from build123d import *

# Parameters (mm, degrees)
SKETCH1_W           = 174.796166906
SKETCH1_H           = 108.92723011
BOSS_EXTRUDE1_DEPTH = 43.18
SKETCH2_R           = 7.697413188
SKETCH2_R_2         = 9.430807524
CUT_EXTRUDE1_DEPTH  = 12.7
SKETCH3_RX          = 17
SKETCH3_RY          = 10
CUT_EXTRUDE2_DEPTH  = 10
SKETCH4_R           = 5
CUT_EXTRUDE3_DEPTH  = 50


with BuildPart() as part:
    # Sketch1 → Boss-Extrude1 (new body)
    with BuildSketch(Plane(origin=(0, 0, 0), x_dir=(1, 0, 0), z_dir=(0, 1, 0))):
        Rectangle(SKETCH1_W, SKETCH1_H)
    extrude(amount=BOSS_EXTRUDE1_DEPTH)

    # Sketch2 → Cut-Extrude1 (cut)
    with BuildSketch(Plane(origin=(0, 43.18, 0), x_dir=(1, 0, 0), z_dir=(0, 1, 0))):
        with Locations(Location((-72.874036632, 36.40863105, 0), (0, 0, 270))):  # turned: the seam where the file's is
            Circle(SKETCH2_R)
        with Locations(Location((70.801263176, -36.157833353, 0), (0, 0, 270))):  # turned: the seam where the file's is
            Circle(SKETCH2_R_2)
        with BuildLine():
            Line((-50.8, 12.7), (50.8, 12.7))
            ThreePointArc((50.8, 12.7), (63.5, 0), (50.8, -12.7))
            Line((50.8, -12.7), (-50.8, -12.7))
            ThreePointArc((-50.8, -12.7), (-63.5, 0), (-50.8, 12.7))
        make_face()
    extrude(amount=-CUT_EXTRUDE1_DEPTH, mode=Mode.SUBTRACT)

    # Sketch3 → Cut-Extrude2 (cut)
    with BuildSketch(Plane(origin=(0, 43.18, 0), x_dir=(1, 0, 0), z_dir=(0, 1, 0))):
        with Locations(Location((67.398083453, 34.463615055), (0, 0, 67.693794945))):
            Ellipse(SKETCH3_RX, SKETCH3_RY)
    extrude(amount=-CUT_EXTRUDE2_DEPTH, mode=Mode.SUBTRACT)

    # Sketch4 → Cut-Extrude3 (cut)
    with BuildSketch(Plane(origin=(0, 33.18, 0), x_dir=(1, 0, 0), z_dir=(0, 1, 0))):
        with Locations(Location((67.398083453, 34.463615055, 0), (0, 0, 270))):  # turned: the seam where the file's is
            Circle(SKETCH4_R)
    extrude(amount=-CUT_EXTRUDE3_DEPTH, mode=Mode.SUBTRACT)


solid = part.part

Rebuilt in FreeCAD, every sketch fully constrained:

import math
import FreeCAD as App
import Part
import Sketcher
from FreeCAD import Vector
Q = App.Units.Quantity

doc = App.newDocument("Part")
body = doc.addObject("PartDesign::Body", "Body")

# Sketch on XZ plane
sketch1 = body.newObject("Sketcher::SketchObject", "Sketch")
sketch1.AttachmentSupport = (doc.getObject("XZ_Plane"), [""])
sketch1.MapMode = "FlatFace"
sketch1.addGeometry([
    Part.LineSegment(Vector(-87, -54, 0), Vector(-87, 54, 0)),
    Part.LineSegment(Vector(-87, 54, 0), Vector(87, 54, 0)),
    Part.LineSegment(Vector(87, 54, 0), Vector(87, -54, 0)),
    Part.LineSegment(Vector(87, -54, 0), Vector(-87, -54, 0)),
], False)
sketch1.addConstraint([
    Sketcher.Constraint("Coincident", 0, 2, 1, 1),
    Sketcher.Constraint("Coincident", 1, 2, 2, 1),
    Sketcher.Constraint("Coincident", 2, 2, 3, 1),
    Sketcher.Constraint("Coincident", 3, 2, 0, 1),
    Sketcher.Constraint("Vertical", 0),
    Sketcher.Constraint("Horizontal", 1),
    Sketcher.Constraint("Vertical", 2),
    Sketcher.Constraint("Horizontal", 3),
    Sketcher.Constraint("Symmetric", 0, 2, 2, 2, -1, 1),
    Sketcher.Constraint("DistanceY", 0, 1, 0, 2, Q("108.92723 mm")),
    Sketcher.Constraint("DistanceX", 1, 1, 1, 2, Q("174.796167 mm")),
])
pad1 = body.newObject("PartDesign::Pad", "Pad")
pad1.Profile = sketch1
pad1.Length = Q("1.7 in")
pad1.Reversed = True

# Sketch on XZ plane
sketch2 = body.newObject("Sketcher::SketchObject", "Sketch001")
sketch2.AttachmentSupport = (doc.getObject("XZ_Plane"), [""])
sketch2.MapMode = "FlatFace"
sketch2.AttachmentOffset = App.Placement(Vector(0, 0, -1.7 * 25.4), App.Rotation())
sketch2.addGeometry([
    Part.Circle(Vector(-73, -36, 0), Vector(0, 0, 1), 8),  # 0
    Part.Circle(Vector(71, 36, 0), Vector(0, 0, 1), 9),  # 1
    Part.LineSegment(Vector(51, -13, 0), Vector(-51, -13, 0)),  # 2
    Part.ArcOfCircle(Part.Circle(Vector(-51, 0, 0), Vector(0, 0, 1), 13), math.radians(90), math.radians(270)),  # 3
    Part.LineSegment(Vector(-51, 13, 0), Vector(51, 13, 0)),  # 4
    Part.ArcOfCircle(Part.Circle(Vector(51, 0, 0), Vector(0, 0, 1), 13), math.radians(-90), math.radians(90)),  # 5
], False)
sketch2.addConstraint([
    Sketcher.Constraint("Tangent", 2, 2, 3, 2),
    Sketcher.Constraint("Tangent", 3, 1, 4, 1),
    Sketcher.Constraint("Tangent", 4, 2, 5, 2),
    Sketcher.Constraint("Tangent", 5, 1, 2, 1),
    Sketcher.Constraint("Horizontal", 2),
    Sketcher.Constraint("Horizontal", 4),
    Sketcher.Constraint("Symmetric", 3, 3, 5, 3, -1, 1),
    Sketcher.Constraint("Radius", 3, Q("0.5 in")),
    Sketcher.Constraint("DistanceX", 2, 2, 2, 1, Q("4 in")),
    Sketcher.Constraint("Diameter", 0, Q("15.394826 mm")),
    Sketcher.Constraint("Diameter", 1, Q("18.861615 mm")),
    Sketcher.Constraint("DistanceX", 0, 3, 1, 3, Q("143.6753 mm")),
    Sketcher.Constraint("DistanceY", 0, 3, -1, 1, Q("36.408631 mm")),
    Sketcher.Constraint("DistanceX", 0, 3, -1, 1, Q("72.874037 mm")),
    Sketcher.Constraint("DistanceY", -1, 1, 1, 3, Q("36.157833 mm")),
])
pocket1 = body.newObject("PartDesign::Pocket", "Pocket")
pocket1.Profile = sketch2
pocket1.Length = Q("0.5 in")
pocket1.Reversed = True

# Sketch on XZ plane
sketch3 = body.newObject("Sketcher::SketchObject", "Sketch002")
sketch3.AttachmentSupport = (doc.getObject("XZ_Plane"), [""])
sketch3.MapMode = "FlatFace"
sketch3.AttachmentOffset = App.Placement(Vector(0, 0, -1.7 * 25.4), App.Rotation())
sketch3.addGeometry(Part.Ellipse(Vector(73.850542, -50.191482, 0), Vector(76.64977, -30.668051, 0), Vector(67.398083, -34.463615, 0)), False)
sketch3.addConstraint(Sketcher.Constraint("Block", 0))
pocket2 = body.newObject("PartDesign::Pocket", "Pocket001")
pocket2.Profile = sketch3
pocket2.Length = 10
pocket2.Reversed = True

# Sketch on XZ plane
sketch4 = body.newObject("Sketcher::SketchObject", "Sketch003")
sketch4.AttachmentSupport = (doc.getObject("XZ_Plane"), [""])
sketch4.MapMode = "FlatFace"
sketch4.AttachmentOffset = App.Placement(Vector(0, 0, -33.18), App.Rotation())
sketch4.addGeometry(Part.Circle(Vector(67, -34, 0), Vector(0, 0, 1), 5), False)
sketch4.addConstraint([
    Sketcher.Constraint("Diameter", 0, Q("10 mm")),
    Sketcher.Constraint("DistanceX", -1, 1, 0, 3, Q("67.398083 mm")),
    Sketcher.Constraint("DistanceY", 0, 3, -1, 1, Q("34.463615 mm")),
])
pocket3 = body.newObject("PartDesign::Pocket", "Pocket002")
pocket3.Profile = sketch4
pocket3.Length = 50
pocket3.Reversed = True

doc.recompute()
